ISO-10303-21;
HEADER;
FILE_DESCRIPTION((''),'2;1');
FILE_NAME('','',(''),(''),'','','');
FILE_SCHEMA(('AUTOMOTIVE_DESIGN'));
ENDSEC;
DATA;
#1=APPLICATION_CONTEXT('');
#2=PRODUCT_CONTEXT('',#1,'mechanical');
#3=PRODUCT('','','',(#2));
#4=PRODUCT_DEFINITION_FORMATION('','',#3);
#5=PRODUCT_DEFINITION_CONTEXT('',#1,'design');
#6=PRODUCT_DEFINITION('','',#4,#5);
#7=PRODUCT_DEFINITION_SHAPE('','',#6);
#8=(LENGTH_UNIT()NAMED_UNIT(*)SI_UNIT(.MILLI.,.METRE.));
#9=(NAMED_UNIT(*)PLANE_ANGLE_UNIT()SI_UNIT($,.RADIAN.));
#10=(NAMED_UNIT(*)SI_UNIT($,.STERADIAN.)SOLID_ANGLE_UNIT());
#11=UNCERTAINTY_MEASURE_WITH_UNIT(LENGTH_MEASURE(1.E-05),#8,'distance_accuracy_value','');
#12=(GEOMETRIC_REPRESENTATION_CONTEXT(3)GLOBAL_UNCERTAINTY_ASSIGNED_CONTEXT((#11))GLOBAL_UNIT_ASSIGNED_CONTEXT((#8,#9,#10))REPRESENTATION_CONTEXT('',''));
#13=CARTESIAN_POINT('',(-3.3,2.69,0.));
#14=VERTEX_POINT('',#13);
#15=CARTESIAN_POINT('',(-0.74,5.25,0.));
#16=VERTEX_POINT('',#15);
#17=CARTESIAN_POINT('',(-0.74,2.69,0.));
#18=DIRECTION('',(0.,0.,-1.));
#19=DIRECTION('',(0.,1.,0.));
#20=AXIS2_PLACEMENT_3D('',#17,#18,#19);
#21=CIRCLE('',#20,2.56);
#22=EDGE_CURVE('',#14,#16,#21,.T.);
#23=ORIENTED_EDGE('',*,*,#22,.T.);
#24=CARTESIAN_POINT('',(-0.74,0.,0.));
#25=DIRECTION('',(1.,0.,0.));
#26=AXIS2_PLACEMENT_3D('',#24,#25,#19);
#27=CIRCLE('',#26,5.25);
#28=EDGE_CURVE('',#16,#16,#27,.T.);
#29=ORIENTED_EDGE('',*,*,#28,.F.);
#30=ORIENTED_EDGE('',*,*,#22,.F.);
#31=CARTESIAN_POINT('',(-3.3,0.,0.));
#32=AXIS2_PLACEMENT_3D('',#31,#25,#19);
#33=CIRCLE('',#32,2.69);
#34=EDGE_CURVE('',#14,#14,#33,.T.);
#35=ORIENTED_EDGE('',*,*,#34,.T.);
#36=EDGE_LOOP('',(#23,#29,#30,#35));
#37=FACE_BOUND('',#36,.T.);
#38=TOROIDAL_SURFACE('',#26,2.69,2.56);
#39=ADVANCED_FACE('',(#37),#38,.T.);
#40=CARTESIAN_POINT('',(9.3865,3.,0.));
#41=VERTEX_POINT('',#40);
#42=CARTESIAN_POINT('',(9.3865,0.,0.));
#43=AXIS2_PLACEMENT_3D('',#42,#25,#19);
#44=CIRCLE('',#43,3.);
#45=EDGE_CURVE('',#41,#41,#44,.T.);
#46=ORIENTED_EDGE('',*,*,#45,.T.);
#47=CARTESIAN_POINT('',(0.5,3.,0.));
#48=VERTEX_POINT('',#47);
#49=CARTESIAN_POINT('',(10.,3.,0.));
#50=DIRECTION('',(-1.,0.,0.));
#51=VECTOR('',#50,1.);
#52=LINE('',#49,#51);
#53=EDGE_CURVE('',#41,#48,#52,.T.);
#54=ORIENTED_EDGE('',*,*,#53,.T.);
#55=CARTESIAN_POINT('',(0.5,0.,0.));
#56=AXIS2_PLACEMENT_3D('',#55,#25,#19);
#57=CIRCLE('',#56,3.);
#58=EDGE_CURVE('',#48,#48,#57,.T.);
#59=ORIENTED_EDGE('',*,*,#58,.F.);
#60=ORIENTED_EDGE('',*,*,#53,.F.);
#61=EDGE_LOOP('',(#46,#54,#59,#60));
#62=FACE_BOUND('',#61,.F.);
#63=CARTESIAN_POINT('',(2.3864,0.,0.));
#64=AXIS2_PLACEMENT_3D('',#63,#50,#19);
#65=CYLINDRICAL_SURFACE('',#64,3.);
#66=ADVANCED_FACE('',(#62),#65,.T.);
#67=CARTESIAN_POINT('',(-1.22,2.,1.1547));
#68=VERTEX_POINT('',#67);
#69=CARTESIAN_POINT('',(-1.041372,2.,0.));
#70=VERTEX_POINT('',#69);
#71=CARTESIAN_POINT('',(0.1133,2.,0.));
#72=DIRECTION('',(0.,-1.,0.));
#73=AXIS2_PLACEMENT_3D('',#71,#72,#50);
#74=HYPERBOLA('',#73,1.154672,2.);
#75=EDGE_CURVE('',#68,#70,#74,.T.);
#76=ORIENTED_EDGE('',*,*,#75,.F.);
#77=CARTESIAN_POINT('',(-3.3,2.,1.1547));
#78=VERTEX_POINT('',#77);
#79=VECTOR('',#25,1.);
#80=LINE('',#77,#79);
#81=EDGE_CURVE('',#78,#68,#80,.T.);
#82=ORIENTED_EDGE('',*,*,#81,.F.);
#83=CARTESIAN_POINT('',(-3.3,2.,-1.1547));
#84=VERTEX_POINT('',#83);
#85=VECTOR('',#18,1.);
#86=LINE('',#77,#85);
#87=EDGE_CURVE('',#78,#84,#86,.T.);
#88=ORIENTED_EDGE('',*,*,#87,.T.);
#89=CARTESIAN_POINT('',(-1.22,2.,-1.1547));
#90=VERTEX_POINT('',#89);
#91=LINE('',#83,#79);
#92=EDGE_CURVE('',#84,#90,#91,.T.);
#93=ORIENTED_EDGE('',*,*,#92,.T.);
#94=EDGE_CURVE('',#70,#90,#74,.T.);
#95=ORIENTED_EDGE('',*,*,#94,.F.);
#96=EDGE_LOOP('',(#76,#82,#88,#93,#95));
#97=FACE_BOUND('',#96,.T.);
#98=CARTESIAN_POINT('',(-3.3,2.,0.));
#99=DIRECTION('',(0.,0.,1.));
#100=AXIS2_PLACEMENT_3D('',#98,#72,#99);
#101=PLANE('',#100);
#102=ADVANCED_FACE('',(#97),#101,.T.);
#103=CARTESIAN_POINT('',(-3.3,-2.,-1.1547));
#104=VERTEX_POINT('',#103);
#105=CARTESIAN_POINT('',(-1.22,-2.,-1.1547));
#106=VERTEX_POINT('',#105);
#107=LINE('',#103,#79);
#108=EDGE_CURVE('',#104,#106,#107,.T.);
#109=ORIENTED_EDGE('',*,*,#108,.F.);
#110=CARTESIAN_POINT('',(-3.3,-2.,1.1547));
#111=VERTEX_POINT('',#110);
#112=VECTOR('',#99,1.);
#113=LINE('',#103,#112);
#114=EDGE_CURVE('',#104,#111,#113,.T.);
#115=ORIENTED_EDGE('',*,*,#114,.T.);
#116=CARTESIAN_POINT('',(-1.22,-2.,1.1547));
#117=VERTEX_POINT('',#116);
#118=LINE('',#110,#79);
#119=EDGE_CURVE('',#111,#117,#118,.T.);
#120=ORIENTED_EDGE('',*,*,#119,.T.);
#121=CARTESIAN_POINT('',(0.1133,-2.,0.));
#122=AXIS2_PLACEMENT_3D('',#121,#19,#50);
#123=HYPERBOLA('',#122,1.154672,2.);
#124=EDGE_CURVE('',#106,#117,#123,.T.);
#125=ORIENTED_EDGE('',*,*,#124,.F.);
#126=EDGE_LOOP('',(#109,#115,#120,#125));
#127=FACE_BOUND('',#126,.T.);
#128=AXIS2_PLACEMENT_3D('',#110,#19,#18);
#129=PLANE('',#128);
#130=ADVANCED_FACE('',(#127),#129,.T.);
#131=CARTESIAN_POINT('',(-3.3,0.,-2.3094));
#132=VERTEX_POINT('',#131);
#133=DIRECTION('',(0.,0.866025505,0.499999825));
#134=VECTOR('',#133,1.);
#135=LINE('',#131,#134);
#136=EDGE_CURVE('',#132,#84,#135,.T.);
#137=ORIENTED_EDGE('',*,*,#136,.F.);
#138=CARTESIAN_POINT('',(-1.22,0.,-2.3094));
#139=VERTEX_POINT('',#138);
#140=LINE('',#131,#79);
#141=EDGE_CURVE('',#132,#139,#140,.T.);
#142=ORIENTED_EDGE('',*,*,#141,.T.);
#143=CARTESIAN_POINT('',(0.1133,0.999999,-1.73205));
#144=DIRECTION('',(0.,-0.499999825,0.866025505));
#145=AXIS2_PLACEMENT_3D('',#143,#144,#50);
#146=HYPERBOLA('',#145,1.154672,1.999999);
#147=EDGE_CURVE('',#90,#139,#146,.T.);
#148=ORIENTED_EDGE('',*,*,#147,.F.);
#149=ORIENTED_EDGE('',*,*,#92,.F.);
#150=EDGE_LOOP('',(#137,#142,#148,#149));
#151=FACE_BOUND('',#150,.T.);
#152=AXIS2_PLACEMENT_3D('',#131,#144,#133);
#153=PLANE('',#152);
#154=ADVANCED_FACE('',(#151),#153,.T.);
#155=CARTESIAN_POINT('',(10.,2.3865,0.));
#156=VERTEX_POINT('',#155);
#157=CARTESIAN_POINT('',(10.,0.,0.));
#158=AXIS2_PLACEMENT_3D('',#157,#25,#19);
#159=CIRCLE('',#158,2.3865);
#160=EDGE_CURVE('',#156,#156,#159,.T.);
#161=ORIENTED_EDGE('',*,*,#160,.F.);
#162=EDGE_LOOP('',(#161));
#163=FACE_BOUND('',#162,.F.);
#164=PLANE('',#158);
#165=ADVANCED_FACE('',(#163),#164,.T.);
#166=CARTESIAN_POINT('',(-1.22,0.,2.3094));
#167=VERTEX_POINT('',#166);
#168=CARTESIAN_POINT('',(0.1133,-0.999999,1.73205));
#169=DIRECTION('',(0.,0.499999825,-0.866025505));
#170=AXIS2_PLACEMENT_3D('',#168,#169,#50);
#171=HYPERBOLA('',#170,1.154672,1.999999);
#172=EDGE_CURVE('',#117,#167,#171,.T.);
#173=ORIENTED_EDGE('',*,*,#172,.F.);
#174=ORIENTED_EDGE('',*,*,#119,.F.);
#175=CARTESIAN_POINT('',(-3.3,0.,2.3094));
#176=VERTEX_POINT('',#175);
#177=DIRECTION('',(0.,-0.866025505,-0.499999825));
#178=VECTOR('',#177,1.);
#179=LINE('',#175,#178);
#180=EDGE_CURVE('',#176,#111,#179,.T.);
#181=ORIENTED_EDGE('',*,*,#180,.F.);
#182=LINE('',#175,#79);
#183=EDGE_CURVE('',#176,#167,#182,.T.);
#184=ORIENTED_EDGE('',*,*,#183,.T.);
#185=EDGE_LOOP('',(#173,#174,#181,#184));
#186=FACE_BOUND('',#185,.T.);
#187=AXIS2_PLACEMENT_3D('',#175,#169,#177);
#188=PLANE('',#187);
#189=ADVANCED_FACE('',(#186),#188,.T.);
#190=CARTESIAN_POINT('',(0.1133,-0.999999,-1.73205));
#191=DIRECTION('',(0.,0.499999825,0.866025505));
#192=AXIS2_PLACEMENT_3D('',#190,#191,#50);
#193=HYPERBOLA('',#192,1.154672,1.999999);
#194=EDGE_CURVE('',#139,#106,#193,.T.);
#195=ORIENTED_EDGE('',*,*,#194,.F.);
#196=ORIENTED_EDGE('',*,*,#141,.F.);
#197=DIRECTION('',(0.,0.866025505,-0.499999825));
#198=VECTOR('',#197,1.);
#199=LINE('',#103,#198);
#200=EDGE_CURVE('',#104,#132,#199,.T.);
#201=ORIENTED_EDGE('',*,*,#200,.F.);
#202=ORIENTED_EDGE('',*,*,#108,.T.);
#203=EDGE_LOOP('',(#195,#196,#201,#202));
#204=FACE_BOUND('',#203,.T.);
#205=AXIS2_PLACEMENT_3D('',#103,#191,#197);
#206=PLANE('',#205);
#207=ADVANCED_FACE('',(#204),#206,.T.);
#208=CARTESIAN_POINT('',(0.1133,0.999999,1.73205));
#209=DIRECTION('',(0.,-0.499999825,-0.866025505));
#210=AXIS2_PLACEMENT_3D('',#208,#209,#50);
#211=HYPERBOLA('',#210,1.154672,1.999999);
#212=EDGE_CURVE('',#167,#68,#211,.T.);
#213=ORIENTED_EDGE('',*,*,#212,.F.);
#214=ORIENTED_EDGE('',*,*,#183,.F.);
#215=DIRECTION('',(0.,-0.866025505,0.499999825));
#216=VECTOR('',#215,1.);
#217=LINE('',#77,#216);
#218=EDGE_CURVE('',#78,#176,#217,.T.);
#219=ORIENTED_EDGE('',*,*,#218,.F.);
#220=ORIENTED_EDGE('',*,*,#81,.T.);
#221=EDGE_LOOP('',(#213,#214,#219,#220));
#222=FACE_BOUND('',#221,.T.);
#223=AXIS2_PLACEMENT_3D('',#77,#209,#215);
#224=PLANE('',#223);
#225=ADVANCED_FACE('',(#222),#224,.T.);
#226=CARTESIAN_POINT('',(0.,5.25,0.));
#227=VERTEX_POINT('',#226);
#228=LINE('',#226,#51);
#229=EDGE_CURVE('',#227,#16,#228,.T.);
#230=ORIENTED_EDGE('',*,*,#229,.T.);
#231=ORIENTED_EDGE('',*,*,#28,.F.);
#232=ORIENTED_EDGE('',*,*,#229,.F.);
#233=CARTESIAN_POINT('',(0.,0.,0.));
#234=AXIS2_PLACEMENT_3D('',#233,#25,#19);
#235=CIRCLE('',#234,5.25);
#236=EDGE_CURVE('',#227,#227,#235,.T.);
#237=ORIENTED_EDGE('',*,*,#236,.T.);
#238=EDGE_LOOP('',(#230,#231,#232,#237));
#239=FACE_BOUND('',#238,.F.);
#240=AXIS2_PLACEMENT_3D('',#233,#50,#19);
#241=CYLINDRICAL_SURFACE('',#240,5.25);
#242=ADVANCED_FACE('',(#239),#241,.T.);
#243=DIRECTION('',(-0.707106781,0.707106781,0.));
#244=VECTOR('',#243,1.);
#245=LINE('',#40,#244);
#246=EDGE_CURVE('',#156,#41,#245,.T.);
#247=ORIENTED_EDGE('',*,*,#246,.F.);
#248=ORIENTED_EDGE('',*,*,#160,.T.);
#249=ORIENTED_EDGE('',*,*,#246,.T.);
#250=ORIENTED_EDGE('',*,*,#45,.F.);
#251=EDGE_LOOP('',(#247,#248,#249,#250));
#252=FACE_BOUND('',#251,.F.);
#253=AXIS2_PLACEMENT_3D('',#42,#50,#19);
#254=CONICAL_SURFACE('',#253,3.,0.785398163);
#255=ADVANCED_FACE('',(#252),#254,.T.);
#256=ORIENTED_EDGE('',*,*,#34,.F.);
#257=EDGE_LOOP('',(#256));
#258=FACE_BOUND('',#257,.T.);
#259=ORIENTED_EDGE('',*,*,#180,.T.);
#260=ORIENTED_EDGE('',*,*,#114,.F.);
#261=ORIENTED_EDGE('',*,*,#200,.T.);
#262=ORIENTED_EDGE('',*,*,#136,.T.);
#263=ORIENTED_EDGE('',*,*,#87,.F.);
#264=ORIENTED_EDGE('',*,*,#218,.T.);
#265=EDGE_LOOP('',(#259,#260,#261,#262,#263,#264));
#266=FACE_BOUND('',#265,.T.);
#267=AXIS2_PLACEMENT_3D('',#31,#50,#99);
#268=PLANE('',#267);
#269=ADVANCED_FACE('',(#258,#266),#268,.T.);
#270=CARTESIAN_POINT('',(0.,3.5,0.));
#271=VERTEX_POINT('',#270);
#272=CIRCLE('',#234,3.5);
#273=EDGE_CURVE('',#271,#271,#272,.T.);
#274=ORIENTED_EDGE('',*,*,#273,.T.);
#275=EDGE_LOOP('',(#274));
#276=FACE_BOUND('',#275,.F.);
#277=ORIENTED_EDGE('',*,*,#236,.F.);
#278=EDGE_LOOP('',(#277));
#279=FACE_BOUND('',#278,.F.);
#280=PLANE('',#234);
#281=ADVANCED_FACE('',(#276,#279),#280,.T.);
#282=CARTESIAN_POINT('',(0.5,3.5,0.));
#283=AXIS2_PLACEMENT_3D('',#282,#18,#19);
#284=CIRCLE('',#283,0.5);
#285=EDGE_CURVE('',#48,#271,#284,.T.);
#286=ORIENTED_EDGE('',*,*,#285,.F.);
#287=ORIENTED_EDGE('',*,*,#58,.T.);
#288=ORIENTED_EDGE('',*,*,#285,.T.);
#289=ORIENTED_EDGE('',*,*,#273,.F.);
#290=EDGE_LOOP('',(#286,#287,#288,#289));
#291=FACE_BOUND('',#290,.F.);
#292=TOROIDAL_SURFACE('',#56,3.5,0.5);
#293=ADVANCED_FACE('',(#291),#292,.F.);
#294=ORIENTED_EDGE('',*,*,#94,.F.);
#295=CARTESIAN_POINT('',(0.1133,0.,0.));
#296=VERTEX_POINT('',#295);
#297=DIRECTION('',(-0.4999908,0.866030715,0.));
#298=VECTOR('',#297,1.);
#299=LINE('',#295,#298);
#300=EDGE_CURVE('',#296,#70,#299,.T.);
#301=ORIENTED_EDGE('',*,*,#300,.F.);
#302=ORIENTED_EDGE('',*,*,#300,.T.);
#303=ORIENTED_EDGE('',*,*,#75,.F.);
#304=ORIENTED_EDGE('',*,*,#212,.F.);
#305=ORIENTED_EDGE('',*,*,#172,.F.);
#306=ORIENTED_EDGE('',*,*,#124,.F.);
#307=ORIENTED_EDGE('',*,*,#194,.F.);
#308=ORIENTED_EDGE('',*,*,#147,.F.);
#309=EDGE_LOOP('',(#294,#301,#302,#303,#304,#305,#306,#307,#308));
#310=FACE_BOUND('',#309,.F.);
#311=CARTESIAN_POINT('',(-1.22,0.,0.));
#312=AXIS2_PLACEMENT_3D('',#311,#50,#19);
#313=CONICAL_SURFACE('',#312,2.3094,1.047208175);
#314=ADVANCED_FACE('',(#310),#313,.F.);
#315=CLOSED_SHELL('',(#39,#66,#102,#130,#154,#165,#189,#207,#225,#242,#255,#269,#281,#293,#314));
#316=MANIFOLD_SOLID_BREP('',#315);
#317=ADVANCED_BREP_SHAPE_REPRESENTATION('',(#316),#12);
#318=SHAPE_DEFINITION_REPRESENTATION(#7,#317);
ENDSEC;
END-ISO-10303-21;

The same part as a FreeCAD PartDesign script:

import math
import FreeCAD as App
import Part
import Sketcher
Q = App.Units.Quantity


def edges_at(feature, points):
    """Names of the edges that pass closest to the given points."""
    edges = feature.Shape.Edges
    near = lambda p: min(range(len(edges)), key=lambda i: edges[i].distToShape(Part.Vertex(*p))[0])
    return sorted({f"Edge{near(p) + 1}" for p in points})


def add_polygon(sketch, points):
    """Adds a closed chain of lines whose ends are joined by coincident constraints."""
    first, n = sketch.GeometryCount, len(points)
    for a, b in zip(points, points[1:] + points[:1]):
        sketch.addGeometry(Part.LineSegment(App.Vector(*a, 0), App.Vector(*b, 0)), False)
    for i in range(n):
        sketch.addConstraint(Sketcher.Constraint("Coincident", first + i, 2, first + (i + 1) % n, 1))

doc = App.newDocument("Part")
params = doc.addObject("Spreadsheet::Sheet", "Params")
for row, (alias, value) in enumerate([
    ("sketch1_width", "10 mm"),
    ("sketch1_width2", "3.3 mm"),
    ("sketch1_width3", "2.08 mm"),
    ("sketch1_height", "3 mm"),
    ("sketch1_height2", "2.25 mm"),
    ("revolution_angle", "360 deg"),
    ("pad1_length", "2.2586 mm"),
    ("fillet_radius", "2.56 mm"),
    ("chamfer_size", "0.6135 mm"),
    ("chamfer_size2", "0.6135 mm"),
    ("fillet2_radius", "0.5 mm"),
], start=1):
    params.set(f"A{row}", alias)
    params.set(f"B{row}", "=" + value)
    params.setAlias(f"B{row}", alias)

body = doc.addObject("PartDesign::Body", "Body")

# Sketch on XY plane
sketch1 = doc.addObject("Sketcher::SketchObject", "Sketch")
body.addObject(sketch1)
sketch1.AttachmentSupport = (doc.XY_Plane, [""])
sketch1.MapMode = "FlatFace"
add_polygon(sketch1, [(0.1, 0), (10, 0), (10, 3), (0, 3), (0, 5.2), (-3.3, 5.2), (-3.3, 2.3), (-1.2, 2.3)])  # lines 0-7
sketch1.addConstraint([
    Sketcher.Constraint("Horizontal", 0),
    Sketcher.Constraint("Vertical", 1),
    Sketcher.Constraint("Horizontal", 2),
    Sketcher.Constraint("Vertical", 3),
    Sketcher.Constraint("Horizontal", 4),
    Sketcher.Constraint("Vertical", 5),
    Sketcher.Constraint("Horizontal", 6),
    Sketcher.Constraint("PointOnObject", 0, 2, -1),
    Sketcher.Constraint("PointOnObject", 2, 2, -2),
    Sketcher.Constraint("DistanceX", 2, 2, 2, 1, 10.0),
    Sketcher.Constraint("DistanceX", 4, 2, 4, 1, 3.3),
    Sketcher.Constraint("DistanceX", 6, 1, 6, 2, 2.08),
    Sketcher.Constraint("DistanceY", 1, 1, 1, 2, 3.0),
    Sketcher.Constraint("Angle", 7, Q("-60.0006 deg")),
    Sketcher.Constraint("DistanceY", 3, 1, 3, 2, 2.25),
    Sketcher.Constraint("DistanceX", 0, 1, 0, 2, 9.8867),
])
sketch1.setExpression("Constraints[17]", "Params.sketch1_width")
sketch1.setExpression("Constraints[18]", "Params.sketch1_width2")
sketch1.setExpression("Constraints[19]", "Params.sketch1_width3")
sketch1.setExpression("Constraints[20]", "Params.sketch1_height")
sketch1.setExpression("Constraints[22]", "Params.sketch1_height2")
revolution = doc.addObject("PartDesign::Revolution", "Revolution")
body.addObject(revolution)
revolution.Profile = sketch1
revolution.ReferenceAxis = (sketch1, ["H_Axis"])
revolution.setExpression("Angle", "Params.revolution_angle")

# Sketch on YZ plane
sketch2 = doc.addObject("Sketcher::SketchObject", "Sketch001")
body.addObject(sketch2)
sketch2.AttachmentSupport = (doc.YZ_Plane, [""])
sketch2.MapMode = "FlatFace"
sketch2.AttachmentOffset = App.Placement(App.Vector(0, 0, -3.3), App.Rotation())
sketch2.addGeometry([
    Part.LineSegment(App.Vector(2, 1.2, 0), App.Vector(0, 2.3, 0)),  # 0
    Part.ArcOfCircle(Part.Circle(App.Vector(0, 0, 0), App.Vector(0, 0, 1), 2.3), math.radians(30), math.radians(90)),  # 1
    Part.ArcOfCircle(Part.Circle(App.Vector(0, 0, 0), App.Vector(0, 0, 1), 2.3), math.radians(90), math.radians(150)),  # 2
    Part.LineSegment(App.Vector(0, 2.3, 0), App.Vector(-2, 1.2, 0)),  # 3
    Part.ArcOfCircle(Part.Circle(App.Vector(0, 0, 0), App.Vector(0, 0, 1), 2.3), math.radians(-30), math.radians(30)),  # 4
    Part.LineSegment(App.Vector(2, -1.2, 0), App.Vector(2, 1.2, 0)),  # 5
    Part.LineSegment(App.Vector(-2, 1.2, 0), App.Vector(-2, -1.2, 0)),  # 6
    Part.ArcOfCircle(Part.Circle(App.Vector(0, 0, 0), App.Vector(0, 0, 1), 2.3), math.radians(150), math.radians(210)),  # 7
    Part.LineSegment(App.Vector(-2, -1.2, 0), App.Vector(0, -2.3, 0)),  # 8
    Part.ArcOfCircle(Part.Circle(App.Vector(0, 0, 0), App.Vector(0, 0, 1), 2.3), math.radians(-150), math.radians(-90)),  # 9
    Part.ArcOfCircle(Part.Circle(App.Vector(0, 0, 0), App.Vector(0, 0, 1), 2.3), math.radians(-90), math.radians(-30)),  # 10
    Part.LineSegment(App.Vector(0, -2.3, 0), App.Vector(2, -1.2, 0)),  # 11
], False)
sketch2.addConstraint([
    Sketcher.Constraint("Coincident", 0, 1, 1, 1),
    Sketcher.Constraint("Coincident", 1, 2, 0, 2),
    Sketcher.Constraint("Coincident", 2, 1, 3, 1),
    Sketcher.Constraint("Coincident", 3, 2, 2, 2),
    Sketcher.Constraint("Coincident", 4, 1, 5, 1),
    Sketcher.Constraint("Coincident", 5, 2, 4, 2),
    Sketcher.Constraint("Coincident", 6, 1, 7, 1),
    Sketcher.Constraint("Coincident", 7, 2, 6, 2),
    Sketcher.Constraint("Coincident", 8, 1, 9, 1),
    Sketcher.Constraint("Coincident", 9, 2, 8, 2),
    Sketcher.Constraint("Coincident", 10, 1, 11, 1),
    Sketcher.Constraint("Coincident", 11, 2, 10, 2),
    Sketcher.Constraint("Vertical", 5),
    Sketcher.Constraint("Vertical", 6),
    Sketcher.Constraint("Coincident", 1, 3, -1, 1),
    Sketcher.Constraint("Coincident", 2, 3, -1, 1),
    Sketcher.Constraint("Coincident", 4, 3, -1, 1),
    Sketcher.Constraint("Coincident", 7, 3, -1, 1),
    Sketcher.Constraint("Coincident", 9, 3, -1, 1),
    Sketcher.Constraint("Coincident", 10, 3, -1, 1),
    Sketcher.Constraint("Coincident", 2, 1, 1, 2),
    Sketcher.Constraint("Coincident", 5, 2, 0, 1),
    Sketcher.Constraint("Coincident", 6, 1, 3, 2),
    Sketcher.Constraint("Coincident", 8, 1, 7, 2),
    Sketcher.Constraint("Coincident", 10, 1, 9, 2),
    Sketcher.Constraint("PointOnObject", 1, 2, -2),
    Sketcher.Constraint("PointOnObject", 9, 2, -2),
    Sketcher.Constraint("Parallel", 0, 8),
    Sketcher.Constraint("Parallel", 3, 11),
    Sketcher.Constraint("Angle", 0, Q("150 deg")),
    Sketcher.Constraint("DistanceX", -1, 1, 0, 1, 2.0),
])
pad1 = doc.addObject("PartDesign::Pad", "Pad")
body.addObject(pad1)
pad1.Profile = sketch2
pad1.setExpression("Length", "Params.pad1_length")
doc.recompute()

fillet = doc.addObject("PartDesign::Fillet", "Fillet")
body.addObject(fillet)
fillet.Base = (pad1, edges_at(pad1, [(-3.3, -5.25, 0)]))
fillet.setExpression("Radius", "Params.fillet_radius")
doc.recompute()

chamfer = doc.addObject("PartDesign::Chamfer", "Chamfer")
body.addObject(chamfer)
chamfer.Base = (fillet, edges_at(fillet, [(10, -3, 0)]))
chamfer.ChamferType = "Two distances"
chamfer.setExpression("Size", "Params.chamfer_size")
chamfer.setExpression("Size2", "Params.chamfer_size2")
doc.recompute()

fillet2 = doc.addObject("PartDesign::Fillet", "Fillet001")
body.addObject(fillet2)
fillet2.Base = (chamfer, edges_at(chamfer, [(0, -3, 0)]))
fillet2.setExpression("Radius", "Params.fillet2_radius")

doc.recompute()
